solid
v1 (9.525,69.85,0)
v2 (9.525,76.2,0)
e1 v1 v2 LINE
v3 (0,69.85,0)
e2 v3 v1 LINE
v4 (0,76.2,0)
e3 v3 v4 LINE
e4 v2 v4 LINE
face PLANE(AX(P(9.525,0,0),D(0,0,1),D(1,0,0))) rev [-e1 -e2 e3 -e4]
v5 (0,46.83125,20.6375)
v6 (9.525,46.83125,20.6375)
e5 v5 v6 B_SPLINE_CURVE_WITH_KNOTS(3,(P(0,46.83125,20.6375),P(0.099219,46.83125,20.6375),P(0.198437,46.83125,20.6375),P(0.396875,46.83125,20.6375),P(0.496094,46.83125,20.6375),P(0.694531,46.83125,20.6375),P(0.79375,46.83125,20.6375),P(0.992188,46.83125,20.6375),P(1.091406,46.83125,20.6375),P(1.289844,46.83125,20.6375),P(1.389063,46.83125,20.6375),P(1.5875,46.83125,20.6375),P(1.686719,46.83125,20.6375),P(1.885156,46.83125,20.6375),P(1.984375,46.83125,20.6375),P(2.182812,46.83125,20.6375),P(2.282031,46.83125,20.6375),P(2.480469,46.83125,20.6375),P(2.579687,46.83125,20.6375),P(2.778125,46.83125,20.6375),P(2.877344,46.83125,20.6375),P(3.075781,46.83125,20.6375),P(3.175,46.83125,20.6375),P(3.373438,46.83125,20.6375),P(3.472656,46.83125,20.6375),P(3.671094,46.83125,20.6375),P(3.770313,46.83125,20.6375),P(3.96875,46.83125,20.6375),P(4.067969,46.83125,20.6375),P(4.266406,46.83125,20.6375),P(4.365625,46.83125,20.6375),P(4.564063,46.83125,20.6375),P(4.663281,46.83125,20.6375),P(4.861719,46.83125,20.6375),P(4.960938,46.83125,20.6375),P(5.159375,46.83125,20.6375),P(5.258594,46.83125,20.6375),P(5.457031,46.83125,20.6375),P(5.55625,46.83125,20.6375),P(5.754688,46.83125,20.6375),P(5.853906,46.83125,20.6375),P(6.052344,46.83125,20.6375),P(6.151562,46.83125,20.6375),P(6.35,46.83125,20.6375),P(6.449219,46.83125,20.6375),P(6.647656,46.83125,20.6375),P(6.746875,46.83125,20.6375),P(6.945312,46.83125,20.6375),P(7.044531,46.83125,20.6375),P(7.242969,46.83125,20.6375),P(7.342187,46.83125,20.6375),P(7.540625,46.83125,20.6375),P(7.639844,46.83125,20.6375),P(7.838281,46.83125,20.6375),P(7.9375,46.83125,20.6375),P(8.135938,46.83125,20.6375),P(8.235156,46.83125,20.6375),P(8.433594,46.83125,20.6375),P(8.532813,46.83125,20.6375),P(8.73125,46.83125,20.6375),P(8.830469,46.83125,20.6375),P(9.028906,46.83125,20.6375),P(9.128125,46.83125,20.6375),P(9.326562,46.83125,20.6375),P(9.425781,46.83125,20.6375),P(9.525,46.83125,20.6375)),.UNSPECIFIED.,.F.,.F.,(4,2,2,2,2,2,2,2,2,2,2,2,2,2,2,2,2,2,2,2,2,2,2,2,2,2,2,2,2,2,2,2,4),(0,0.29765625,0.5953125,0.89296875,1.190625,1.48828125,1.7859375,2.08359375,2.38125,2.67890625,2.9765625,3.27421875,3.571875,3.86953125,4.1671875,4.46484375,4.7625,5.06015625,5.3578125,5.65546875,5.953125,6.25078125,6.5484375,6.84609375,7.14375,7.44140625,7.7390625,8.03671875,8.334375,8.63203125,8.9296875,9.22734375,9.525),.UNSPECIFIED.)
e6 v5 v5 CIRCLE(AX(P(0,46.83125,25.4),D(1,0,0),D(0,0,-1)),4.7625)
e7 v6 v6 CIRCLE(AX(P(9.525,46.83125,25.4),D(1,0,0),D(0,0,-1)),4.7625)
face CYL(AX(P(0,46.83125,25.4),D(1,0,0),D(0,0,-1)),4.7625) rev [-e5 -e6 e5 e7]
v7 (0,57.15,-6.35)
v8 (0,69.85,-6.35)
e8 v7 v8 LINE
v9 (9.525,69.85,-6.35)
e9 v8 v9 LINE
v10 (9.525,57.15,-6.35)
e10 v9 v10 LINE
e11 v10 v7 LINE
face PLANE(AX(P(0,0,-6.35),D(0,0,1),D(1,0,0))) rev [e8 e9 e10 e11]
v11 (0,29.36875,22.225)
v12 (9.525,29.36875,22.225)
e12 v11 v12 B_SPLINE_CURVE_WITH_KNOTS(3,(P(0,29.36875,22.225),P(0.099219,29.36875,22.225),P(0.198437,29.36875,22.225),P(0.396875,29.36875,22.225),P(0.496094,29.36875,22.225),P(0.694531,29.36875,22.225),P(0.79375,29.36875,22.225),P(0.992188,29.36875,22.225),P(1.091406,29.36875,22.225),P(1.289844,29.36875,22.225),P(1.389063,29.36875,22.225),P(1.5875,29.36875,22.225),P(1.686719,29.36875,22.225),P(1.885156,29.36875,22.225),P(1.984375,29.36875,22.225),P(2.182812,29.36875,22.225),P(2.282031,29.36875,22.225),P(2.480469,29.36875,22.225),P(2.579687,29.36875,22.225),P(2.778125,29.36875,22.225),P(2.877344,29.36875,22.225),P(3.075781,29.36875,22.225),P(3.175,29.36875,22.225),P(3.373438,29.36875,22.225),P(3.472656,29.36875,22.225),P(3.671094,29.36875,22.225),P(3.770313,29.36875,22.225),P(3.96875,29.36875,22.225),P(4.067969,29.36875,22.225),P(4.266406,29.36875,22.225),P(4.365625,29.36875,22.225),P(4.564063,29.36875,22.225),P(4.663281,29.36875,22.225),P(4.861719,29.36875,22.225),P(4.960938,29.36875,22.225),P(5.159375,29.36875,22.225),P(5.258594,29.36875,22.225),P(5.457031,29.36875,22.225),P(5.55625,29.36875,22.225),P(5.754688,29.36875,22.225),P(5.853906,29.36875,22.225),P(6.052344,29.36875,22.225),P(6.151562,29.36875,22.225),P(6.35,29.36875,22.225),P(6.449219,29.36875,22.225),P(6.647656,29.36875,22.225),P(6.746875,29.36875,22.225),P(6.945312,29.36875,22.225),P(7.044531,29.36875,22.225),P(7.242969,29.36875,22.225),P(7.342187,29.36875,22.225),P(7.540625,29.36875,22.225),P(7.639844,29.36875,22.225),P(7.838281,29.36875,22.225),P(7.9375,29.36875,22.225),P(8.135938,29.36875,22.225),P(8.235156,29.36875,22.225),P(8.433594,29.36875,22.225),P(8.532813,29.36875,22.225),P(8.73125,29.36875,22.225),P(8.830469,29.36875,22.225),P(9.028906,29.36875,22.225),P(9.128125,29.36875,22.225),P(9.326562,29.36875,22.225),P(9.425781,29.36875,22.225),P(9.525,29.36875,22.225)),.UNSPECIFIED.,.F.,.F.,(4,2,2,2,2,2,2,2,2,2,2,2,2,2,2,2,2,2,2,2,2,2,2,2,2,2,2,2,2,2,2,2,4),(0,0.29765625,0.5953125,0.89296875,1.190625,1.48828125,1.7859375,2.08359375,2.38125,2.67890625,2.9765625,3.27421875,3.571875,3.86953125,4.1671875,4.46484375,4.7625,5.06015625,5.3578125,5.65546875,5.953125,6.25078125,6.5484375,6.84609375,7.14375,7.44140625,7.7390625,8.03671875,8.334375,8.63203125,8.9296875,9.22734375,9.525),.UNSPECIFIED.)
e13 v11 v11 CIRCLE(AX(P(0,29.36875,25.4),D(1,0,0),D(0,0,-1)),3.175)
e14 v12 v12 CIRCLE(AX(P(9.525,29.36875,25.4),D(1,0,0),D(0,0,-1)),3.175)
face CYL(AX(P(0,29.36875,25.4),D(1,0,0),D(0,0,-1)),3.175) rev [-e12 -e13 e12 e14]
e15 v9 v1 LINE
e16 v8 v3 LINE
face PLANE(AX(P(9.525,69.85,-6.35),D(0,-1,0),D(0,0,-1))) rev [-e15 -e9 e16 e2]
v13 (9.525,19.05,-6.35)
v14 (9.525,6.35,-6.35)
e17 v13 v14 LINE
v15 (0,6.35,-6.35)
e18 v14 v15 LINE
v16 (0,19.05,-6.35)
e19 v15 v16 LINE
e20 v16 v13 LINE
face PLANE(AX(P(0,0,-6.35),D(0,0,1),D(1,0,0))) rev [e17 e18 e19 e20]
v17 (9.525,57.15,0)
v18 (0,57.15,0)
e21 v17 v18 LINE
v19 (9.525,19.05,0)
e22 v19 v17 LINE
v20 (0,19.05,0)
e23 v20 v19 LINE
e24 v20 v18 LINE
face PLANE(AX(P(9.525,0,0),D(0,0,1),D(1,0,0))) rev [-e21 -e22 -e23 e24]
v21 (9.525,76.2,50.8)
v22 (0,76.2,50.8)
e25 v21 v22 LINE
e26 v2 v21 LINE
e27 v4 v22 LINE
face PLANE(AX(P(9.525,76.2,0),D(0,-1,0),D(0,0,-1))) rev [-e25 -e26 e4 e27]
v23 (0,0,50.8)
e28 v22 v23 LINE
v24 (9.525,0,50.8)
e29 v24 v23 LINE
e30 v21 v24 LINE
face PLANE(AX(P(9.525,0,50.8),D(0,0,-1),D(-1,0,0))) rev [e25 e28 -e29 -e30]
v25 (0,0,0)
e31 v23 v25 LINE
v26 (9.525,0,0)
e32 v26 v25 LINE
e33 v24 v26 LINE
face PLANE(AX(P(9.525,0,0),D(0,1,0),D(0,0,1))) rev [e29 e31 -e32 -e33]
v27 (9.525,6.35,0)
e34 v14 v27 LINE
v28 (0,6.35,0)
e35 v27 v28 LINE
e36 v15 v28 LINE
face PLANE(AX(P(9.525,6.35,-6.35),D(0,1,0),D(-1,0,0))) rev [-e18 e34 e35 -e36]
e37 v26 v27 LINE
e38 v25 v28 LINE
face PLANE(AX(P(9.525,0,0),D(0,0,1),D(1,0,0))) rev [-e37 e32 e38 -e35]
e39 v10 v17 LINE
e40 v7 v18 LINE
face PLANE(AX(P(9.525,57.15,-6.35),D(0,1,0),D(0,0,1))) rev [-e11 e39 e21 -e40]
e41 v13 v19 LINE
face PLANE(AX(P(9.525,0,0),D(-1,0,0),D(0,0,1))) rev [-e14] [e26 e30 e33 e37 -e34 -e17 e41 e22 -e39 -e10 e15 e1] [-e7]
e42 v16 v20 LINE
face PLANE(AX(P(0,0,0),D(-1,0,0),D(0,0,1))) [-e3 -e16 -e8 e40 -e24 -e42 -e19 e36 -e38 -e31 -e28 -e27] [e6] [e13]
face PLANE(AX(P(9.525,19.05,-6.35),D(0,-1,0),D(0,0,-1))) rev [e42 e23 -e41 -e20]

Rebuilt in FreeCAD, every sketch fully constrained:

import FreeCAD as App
import Part
import Sketcher
from FreeCAD import Vector
Q = App.Units.Quantity

doc = App.newDocument("Part")
params = doc.addObject("Spreadsheet::Sheet", "Params")
for row, (alias, value) in enumerate([
    ("sketch1_width", "3 in"),
    ("sketch1_height", "2 in"),
    ("pad1_length", "0.375 in"),
    ("sketch2_diameter", "0.25 in"),
    ("sketch2_diameter2", "0.375 in"),
    ("sketch3_height", "0.5 in"),
    ("sketch3_width", "0.375 in"),
    ("pad2_length", "0.25 in"),
], start=1):
    params.set(f"A{row}", alias)
    params.set(f"B{row}", "=" + value)
    params.setAlias(f"B{row}", alias)

body = doc.addObject("PartDesign::Body", "Body")

# Sketch on YZ plane
sketch1 = doc.addObject("Sketcher::SketchObject", "Sketch")
body.addObject(sketch1)
sketch1.AttachmentSupport = (doc.YZ_Plane, [""])
sketch1.MapMode = "FlatFace"
sketch1.addGeometry(Part.LineSegment(Vector(0, 51, 0), Vector(0, 0, 0)), False)
sketch1.addGeometry(Part.LineSegment(Vector(0, 0, 0), Vector(76, 0, 0)), False)
sketch1.addGeometry(Part.LineSegment(Vector(76, 0, 0), Vector(76, 51, 0)), False)
sketch1.addGeometry(Part.LineSegment(Vector(76, 51, 0), Vector(0, 51, 0)), False)
sketch1.addConstraint(Sketcher.Constraint("Coincident", 0, 2, 1, 1))
sketch1.addConstraint(Sketcher.Constraint("Coincident", 1, 2, 2, 1))
sketch1.addConstraint(Sketcher.Constraint("Coincident", 2, 2, 3, 1))
sketch1.addConstraint(Sketcher.Constraint("Coincident", 3, 2, 0, 1))
sketch1.addConstraint(Sketcher.Constraint("Vertical", 0))
sketch1.addConstraint(Sketcher.Constraint("Horizontal", 1))
sketch1.addConstraint(Sketcher.Constraint("Vertical", 2))
sketch1.addConstraint(Sketcher.Constraint("Horizontal", 3))
sketch1.addConstraint(Sketcher.Constraint("Coincident", 0, 2, -1, 1))
sketch1.addConstraint(Sketcher.Constraint("DistanceX", 1, 1, 1, 2, Q("3 in")))
sketch1.addConstraint(Sketcher.Constraint("DistanceY", 0, 2, 0, 1, Q("2 in")))
sketch1.setExpression("Constraints[9]", "Params.sketch1_width")
sketch1.setExpression("Constraints[10]", "Params.sketch1_height")
pad1 = doc.addObject("PartDesign::Pad", "Pad")
body.addObject(pad1)
pad1.Profile = sketch1
pad1.setExpression("Length", "Params.pad1_length")

# Sketch on YZ plane
sketch2 = doc.addObject("Sketcher::SketchObject", "Sketch001")
body.addObject(sketch2)
sketch2.AttachmentSupport = (doc.YZ_Plane, [""])
sketch2.MapMode = "FlatFace"
sketch2.AttachmentOffset = App.Placement(Vector(0, 0, 0.375 * 25.4), App.Rotation())
sketch2.addGeometry(Part.Circle(Vector(29.4, 25.4, 0), Vector(0, 0, 1), 3.2), False)
sketch2.addGeometry(Part.Circle(Vector(46.8, 25.4, 0), Vector(0, 0, 1), 4.8), False)
sketch2.addConstraint(Sketcher.Constraint("Horizontal", 0, 3, 1, 3))
sketch2.addConstraint(Sketcher.Constraint("Diameter", 0, Q("0.25 in")))
sketch2.addConstraint(Sketcher.Constraint("Diameter", 1, Q("0.375 in")))
sketch2.addConstraint(Sketcher.Constraint("DistanceY", -1, 1, 0, 3, Q("1 in")))
sketch2.addConstraint(Sketcher.Constraint("DistanceX", -1, 1, 0, 3, Q("1.15625 in")))
sketch2.addConstraint(Sketcher.Constraint("DistanceX", -1, 1, 1, 3, Q("1.84375 in")))
sketch2.setExpression("Constraints[1]", "Params.sketch2_diameter")
sketch2.setExpression("Constraints[2]", "Params.sketch2_diameter2")
pocket1 = doc.addObject("PartDesign::Pocket", "Pocket")
body.addObject(pocket1)
pocket1.Profile = sketch2
pocket1.Type = "ThroughAll"

# Sketch on XY plane
sketch3 = doc.addObject("Sketcher::SketchObject", "Sketch002")
body.addObject(sketch3)
sketch3.AttachmentSupport = (doc.XY_Plane, [""])
sketch3.MapMode = "FlatFace"
sketch3.addGeometry(Part.LineSegment(Vector(0, 6, 0), Vector(0, 19, 0)), False)
sketch3.addGeometry(Part.LineSegment(Vector(0, 19, 0), Vector(10, 19, 0)), False)
sketch3.addGeometry(Part.LineSegment(Vector(10, 19, 0), Vector(10, 6, 0)), False)
sketch3.addGeometry(Part.LineSegment(Vector(10, 6, 0), Vector(0, 6, 0)), False)
sketch3.addGeometry(Part.LineSegment(Vector(0, 57, 0), Vector(0, 70, 0)), False)
sketch3.addGeometry(Part.LineSegment(Vector(0, 70, 0), Vector(10, 70, 0)), False)
sketch3.addGeometry(Part.LineSegment(Vector(10, 70, 0), Vector(10, 57, 0)), False)
sketch3.addGeometry(Part.LineSegment(Vector(10, 57, 0), Vector(0, 57, 0)), False)
sketch3.addConstraint(Sketcher.Constraint("Coincident", 0, 2, 1, 1))
sketch3.addConstraint(Sketcher.Constraint("Coincident", 1, 2, 2, 1))
sketch3.addConstraint(Sketcher.Constraint("Coincident", 2, 2, 3, 1))
sketch3.addConstraint(Sketcher.Constraint("Coincident", 3, 2, 0, 1))
sketch3.addConstraint(Sketcher.Constraint("Coincident", 4, 2, 5, 1))
sketch3.addConstraint(Sketcher.Constraint("Coincident", 5, 2, 6, 1))
sketch3.addConstraint(Sketcher.Constraint("Coincident", 6, 2, 7, 1))
sketch3.addConstraint(Sketcher.Constraint("Coincident", 7, 2, 4, 1))
sketch3.addConstraint(Sketcher.Constraint("Vertical", 0))
sketch3.addConstraint(Sketcher.Constraint("Horizontal", 1))
sketch3.addConstraint(Sketcher.Constraint("Vertical", 2))
sketch3.addConstraint(Sketcher.Constraint("Horizontal", 3))
sketch3.addConstraint(Sketcher.Constraint("Vertical", 4))
sketch3.addConstraint(Sketcher.Constraint("Horizontal", 5))
sketch3.addConstraint(Sketcher.Constraint("Vertical", 6))
sketch3.addConstraint(Sketcher.Constraint("Horizontal", 7))
sketch3.addConstraint(Sketcher.Constraint("PointOnObject", 0, 2, -2))
sketch3.addConstraint(Sketcher.Constraint("PointOnObject", 4, 2, -2))
sketch3.addConstraint(Sketcher.Constraint("Vertical", 2, 2, 5, 2))
sketch3.addConstraint(Sketcher.Constraint("Equal", 2, 4))
sketch3.addConstraint(Sketcher.Constraint("DistanceY", 0, 1, 0, 2, Q("0.5 in")))
sketch3.addConstraint(Sketcher.Constraint("DistanceY", 0, 2, 4, 2, Q("2 in")))
sketch3.addConstraint(Sketcher.Constraint("DistanceX", 1, 1, 1, 2, Q("0.375 in")))
sketch3.addConstraint(Sketcher.Constraint("DistanceY", -1, 1, 0, 2, Q("0.75 in")))
sketch3.setExpression("Constraints[20]", "Params.sketch3_height")
sketch3.setExpression("Constraints[22]", "Params.sketch3_width")
pad2 = doc.addObject("PartDesign::Pad", "Pad001")
body.addObject(pad2)
pad2.Profile = sketch3
pad2.setExpression("Length", "Params.pad2_length")
pad2.Reversed = True

doc.recompute()
